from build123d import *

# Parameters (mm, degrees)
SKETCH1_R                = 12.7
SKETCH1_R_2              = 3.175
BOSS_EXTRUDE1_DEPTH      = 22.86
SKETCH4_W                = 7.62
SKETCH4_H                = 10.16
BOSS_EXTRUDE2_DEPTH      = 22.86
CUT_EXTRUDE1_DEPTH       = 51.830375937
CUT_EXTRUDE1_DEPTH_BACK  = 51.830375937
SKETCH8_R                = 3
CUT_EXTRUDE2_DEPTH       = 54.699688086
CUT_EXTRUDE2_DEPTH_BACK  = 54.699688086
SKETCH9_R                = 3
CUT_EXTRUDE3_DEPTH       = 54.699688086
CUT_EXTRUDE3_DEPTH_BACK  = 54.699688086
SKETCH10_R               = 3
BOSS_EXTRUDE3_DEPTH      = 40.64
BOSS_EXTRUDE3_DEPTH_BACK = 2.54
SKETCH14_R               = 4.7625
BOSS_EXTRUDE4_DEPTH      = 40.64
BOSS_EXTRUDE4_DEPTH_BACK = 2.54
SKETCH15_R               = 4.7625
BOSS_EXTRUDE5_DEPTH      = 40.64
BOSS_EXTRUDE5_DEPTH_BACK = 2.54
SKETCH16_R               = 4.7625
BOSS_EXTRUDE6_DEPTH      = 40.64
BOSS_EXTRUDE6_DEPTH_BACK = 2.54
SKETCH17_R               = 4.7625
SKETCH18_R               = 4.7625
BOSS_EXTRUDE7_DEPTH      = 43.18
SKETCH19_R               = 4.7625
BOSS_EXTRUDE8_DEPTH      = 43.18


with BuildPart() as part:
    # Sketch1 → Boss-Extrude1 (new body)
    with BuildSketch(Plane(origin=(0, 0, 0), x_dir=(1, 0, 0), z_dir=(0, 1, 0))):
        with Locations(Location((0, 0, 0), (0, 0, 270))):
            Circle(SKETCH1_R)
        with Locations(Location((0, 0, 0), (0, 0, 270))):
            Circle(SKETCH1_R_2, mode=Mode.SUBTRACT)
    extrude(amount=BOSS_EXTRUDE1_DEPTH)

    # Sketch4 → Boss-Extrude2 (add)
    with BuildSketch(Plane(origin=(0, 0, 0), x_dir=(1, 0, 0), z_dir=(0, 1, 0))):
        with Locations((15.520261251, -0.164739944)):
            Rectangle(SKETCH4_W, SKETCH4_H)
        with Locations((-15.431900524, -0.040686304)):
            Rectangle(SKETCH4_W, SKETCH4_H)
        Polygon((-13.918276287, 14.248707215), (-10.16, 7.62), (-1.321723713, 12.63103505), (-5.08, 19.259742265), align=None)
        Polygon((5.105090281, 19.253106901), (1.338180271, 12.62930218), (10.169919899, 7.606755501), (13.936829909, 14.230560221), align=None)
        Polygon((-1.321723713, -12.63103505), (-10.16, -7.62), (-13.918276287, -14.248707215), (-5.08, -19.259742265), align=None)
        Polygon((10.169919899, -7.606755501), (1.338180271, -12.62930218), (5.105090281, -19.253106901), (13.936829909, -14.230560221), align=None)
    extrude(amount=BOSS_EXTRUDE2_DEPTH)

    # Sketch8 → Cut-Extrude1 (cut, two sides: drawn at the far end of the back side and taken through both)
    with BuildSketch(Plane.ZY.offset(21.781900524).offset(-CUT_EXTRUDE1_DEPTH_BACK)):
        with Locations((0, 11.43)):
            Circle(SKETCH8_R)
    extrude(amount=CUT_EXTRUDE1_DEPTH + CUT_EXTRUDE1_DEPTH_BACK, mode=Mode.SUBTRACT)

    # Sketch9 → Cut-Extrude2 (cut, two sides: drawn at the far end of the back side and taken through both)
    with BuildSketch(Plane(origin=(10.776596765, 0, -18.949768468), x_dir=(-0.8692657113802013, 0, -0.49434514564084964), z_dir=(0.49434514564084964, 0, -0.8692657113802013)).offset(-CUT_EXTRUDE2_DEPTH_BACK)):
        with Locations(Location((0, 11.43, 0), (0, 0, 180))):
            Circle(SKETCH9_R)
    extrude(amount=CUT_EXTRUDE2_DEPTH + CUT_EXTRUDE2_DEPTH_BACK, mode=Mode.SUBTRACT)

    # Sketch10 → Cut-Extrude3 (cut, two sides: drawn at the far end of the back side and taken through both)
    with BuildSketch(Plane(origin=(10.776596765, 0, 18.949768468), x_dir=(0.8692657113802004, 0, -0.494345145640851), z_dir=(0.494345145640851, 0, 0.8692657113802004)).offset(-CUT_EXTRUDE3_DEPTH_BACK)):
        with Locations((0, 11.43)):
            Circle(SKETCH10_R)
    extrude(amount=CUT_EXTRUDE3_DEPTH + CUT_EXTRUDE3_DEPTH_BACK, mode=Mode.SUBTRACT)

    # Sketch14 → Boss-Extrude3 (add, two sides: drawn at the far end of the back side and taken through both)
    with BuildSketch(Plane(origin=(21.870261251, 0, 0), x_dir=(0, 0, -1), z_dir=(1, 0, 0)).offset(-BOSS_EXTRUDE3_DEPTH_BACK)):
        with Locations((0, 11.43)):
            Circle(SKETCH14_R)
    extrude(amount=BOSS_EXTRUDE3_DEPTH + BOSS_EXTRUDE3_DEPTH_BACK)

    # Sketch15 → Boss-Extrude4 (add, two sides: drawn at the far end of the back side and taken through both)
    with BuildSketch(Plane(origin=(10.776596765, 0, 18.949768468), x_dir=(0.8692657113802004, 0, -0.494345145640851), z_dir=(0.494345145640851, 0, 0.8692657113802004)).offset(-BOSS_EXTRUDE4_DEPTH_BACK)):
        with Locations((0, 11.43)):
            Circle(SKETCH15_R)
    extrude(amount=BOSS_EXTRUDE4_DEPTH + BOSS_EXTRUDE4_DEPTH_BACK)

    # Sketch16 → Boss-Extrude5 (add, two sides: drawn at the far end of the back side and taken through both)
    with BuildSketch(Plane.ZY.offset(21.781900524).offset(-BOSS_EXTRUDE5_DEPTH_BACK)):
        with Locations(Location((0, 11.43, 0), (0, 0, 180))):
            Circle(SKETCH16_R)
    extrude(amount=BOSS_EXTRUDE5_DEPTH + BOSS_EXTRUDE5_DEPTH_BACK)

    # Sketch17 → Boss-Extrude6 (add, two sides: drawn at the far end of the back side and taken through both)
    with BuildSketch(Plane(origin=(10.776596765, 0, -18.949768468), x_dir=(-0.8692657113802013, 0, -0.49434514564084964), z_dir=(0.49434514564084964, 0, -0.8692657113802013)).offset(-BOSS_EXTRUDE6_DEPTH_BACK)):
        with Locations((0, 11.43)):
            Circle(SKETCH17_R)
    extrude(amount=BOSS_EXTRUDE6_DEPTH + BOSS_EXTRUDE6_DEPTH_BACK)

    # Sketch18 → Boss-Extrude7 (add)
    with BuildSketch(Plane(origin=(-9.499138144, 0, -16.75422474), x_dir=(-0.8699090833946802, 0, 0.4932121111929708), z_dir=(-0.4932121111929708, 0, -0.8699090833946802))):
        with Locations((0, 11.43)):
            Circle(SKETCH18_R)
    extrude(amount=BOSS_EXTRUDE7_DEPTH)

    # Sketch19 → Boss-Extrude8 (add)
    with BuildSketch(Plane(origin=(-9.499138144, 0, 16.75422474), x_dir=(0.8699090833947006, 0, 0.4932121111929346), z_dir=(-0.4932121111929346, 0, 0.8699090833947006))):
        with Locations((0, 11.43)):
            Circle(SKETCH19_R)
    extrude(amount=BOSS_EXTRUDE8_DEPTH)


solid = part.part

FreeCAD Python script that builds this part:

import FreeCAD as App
import Part
import Sketcher
Q = App.Units.Quantity


def add_polygon(sketch, points):
    """Adds a closed chain of lines whose ends are joined by coincident constraints."""
    first, n = sketch.GeometryCount, len(points)
    for a, b in zip(points, points[1:] + points[:1]):
        sketch.addGeometry(Part.LineSegment(App.Vector(*a, 0), App.Vector(*b, 0)), False)
    for i in range(n):
        sketch.addConstraint(Sketcher.Constraint("Coincident", first + i, 2, first + (i + 1) % n, 1))

doc = App.newDocument("Part")
body = doc.addObject("PartDesign::Body", "Body")

# Sketch on XZ plane
sketch1 = doc.addObject("Sketcher::SketchObject", "Sketch")
body.addObject(sketch1)
sketch1.AttachmentSupport = (doc.XZ_Plane, [""])
sketch1.MapMode = "FlatFace"
sketch1.addGeometry([
    Part.Circle(App.Vector(0, 0, 0), App.Vector(0, 0, 1), 12.7),
    Part.Circle(App.Vector(0, 0, 0), App.Vector(0, 0, 1), 3.2),
], False)
sketch1.addConstraint([
    Sketcher.Constraint("Coincident", 0, 3, -1, 1),
    Sketcher.Constraint("Coincident", 1, 3, -1, 1),
    Sketcher.Constraint("Diameter", 0, Q("1 in")),
    Sketcher.Constraint("Diameter", 1, Q("0.25 in")),
])
pad1 = doc.addObject("PartDesign::Pad", "Pad")
body.addObject(pad1)
pad1.Profile = sketch1
pad1.Length = Q("0.9 in")
pad1.Reversed = True

# Sketch on XZ plane
sketch2 = doc.addObject("Sketcher::SketchObject", "Sketch001")
body.addObject(sketch2)
sketch2.AttachmentSupport = (doc.XZ_Plane, [""])
sketch2.MapMode = "FlatFace"
add_polygon(sketch2, [(12, -5), (12, 5), (19, 5), (19, -5)])  # lines 0-3
add_polygon(sketch2, [(-19, -5), (-19, 5), (-12, 5), (-12, -5)])  # lines 4-7
add_polygon(sketch2, [(-14, -14), (-10, -8), (-1, -13), (-5, -19)])  # lines 8-11
add_polygon(sketch2, [(5, -19), (1, -13), (10, -8), (14, -14)])  # lines 12-15
add_polygon(sketch2, [(-1, 13), (-10, 8), (-14, 14), (-5, 19)])  # lines 16-19
add_polygon(sketch2, [(10, 8), (1, 13), (5, 19), (14, 14)])  # lines 20-23
sketch2.addConstraint([
    Sketcher.Constraint("Vertical", 0),
    Sketcher.Constraint("Horizontal", 1),
    Sketcher.Constraint("Vertical", 2),
    Sketcher.Constraint("Horizontal", 3),
    Sketcher.Constraint("Vertical", 4),
    Sketcher.Constraint("Horizontal", 5),
    Sketcher.Constraint("Vertical", 6),
    Sketcher.Constraint("Horizontal", 7),
    Sketcher.Constraint("Symmetric", 8, 2, 16, 2, -1),
    Sketcher.Constraint("Symmetric", 11, 2, 17, 2, -1),
    Sketcher.Constraint("Symmetric", 10, 2, 18, 2, -1),
    Sketcher.Constraint("Symmetric", 9, 2, 19, 2, -1),
    Sketcher.Constraint("Symmetric", 12, 2, 20, 2, -1),
    Sketcher.Constraint("Symmetric", 15, 2, 21, 2, -1),
    Sketcher.Constraint("Symmetric", 14, 2, 22, 2, -1),
    Sketcher.Constraint("Symmetric", 13, 2, 23, 2, -1),
    Sketcher.Constraint("Perpendicular", 8, 9),
    Sketcher.Constraint("Perpendicular", 9, 10),
    Sketcher.Constraint("Perpendicular", 10, 11),
    Sketcher.Constraint("Perpendicular", 12, 13),
    Sketcher.Constraint("Perpendicular", 13, 14),
    Sketcher.Constraint("Perpendicular", 14, 15),
    Sketcher.Constraint("Equal", 3, 5),
    Sketcher.Constraint("Equal", 2, 4),
    Sketcher.Constraint("Equal", 10, 12),
    Sketcher.Constraint("Equal", 11, 13),
    Sketcher.Constraint("DistanceX", 1, 1, 1, 2, Q("0.3 in")),
    Sketcher.Constraint("DistanceY", 0, 1, 0, 2, Q("0.4 in")),
    Sketcher.Constraint("Distance", 8, Q("0.3 in")),
    Sketcher.Constraint("Distance", 9, Q("0.4 in")),
    Sketcher.Constraint("DistanceX", 8, 2, -1, 1, Q("0.4 in")),
    Sketcher.Constraint("DistanceY", 8, 2, -1, 1, Q("0.3 in")),
    Sketcher.Constraint("DistanceX", 10, 2, -1, 1, Q("0.2 in")),
    Sketcher.Constraint("DistanceX", 4, 2, -1, 1, Q("19.241901 mm")),
    Sketcher.Constraint("DistanceY", 14, 2, 3, 2, Q("9.3153 mm")),
    Sketcher.Constraint("DistanceX", -1, 1, 0, 2, Q("11.710261 mm")),
    Sketcher.Constraint("DistanceY", -1, 1, 0, 2, Q("5.24474 mm")),
    Sketcher.Constraint("DistanceX", -1, 1, 12, 2, Q("1.33818 mm")),
    Sketcher.Constraint("DistanceX", -1, 1, 13, 2, Q("10.16992 mm")),
    Sketcher.Constraint("DistanceY", 9, 2, 6, 2, Q("7.591721 mm")),
])
pad2 = doc.addObject("PartDesign::Pad", "Pad001")
body.addObject(pad2)
pad2.Profile = sketch2
pad2.Length = Q("0.9 in")
pad2.Reversed = True

# Sketch on YZ plane
sketch3 = doc.addObject("Sketcher::SketchObject", "Sketch002")
body.addObject(sketch3)
sketch3.AttachmentSupport = (doc.YZ_Plane, [""])
sketch3.MapMode = "FlatFace"
sketch3.AttachmentOffset = App.Placement(App.Vector(0, 0, -21.781901), App.Rotation())
sketch3.addGeometry(Part.Circle(App.Vector(11.4, 0, 0), App.Vector(0, 0, 1), 3), False)
sketch3.addConstraint([
    Sketcher.Constraint("PointOnObject", 0, 3, -1),
    Sketcher.Constraint("Diameter", 0, Q("6 mm")),
    Sketcher.Constraint("DistanceX", -1, 1, 0, 3, Q("0.45 in")),
])
pocket1 = doc.addObject("PartDesign::Pocket", "Pocket")
body.addObject(pocket1)
pocket1.Profile = sketch3
pocket1.Type = "ThroughAll"
pocket1.Midplane = True

# Sketch on an angled plane
sketch4 = doc.addObject("Sketcher::SketchObject", "Sketch003")
body.addObject(sketch4)
sketch4.Placement = App.Placement(App.Vector(10.776597, 0, -18.949768), App.Rotation(App.Vector(-0.869265711, 0, -0.494345146), App.Vector(0, 1, 0), App.Vector(0.494345146, 0, -0.869265711), "ZXY"))
sketch4.addGeometry(Part.Circle(App.Vector(0, 11.4, 0), App.Vector(0, 0, 1), 3), False)
sketch4.addConstraint([
    Sketcher.Constraint("PointOnObject", 0, 3, -2),
    Sketcher.Constraint("Diameter", 0, Q("6 mm")),
    Sketcher.Constraint("DistanceY", -1, 1, 0, 3, Q("0.45 in")),
])
pocket2 = doc.addObject("PartDesign::Pocket", "Pocket001")
body.addObject(pocket2)
pocket2.Profile = sketch4
pocket2.Type = "ThroughAll"
pocket2.Midplane = True

# Sketch on an angled plane
sketch5 = doc.addObject("Sketcher::SketchObject", "Sketch004")
body.addObject(sketch5)
sketch5.Placement = App.Placement(App.Vector(10.776597, 0, 18.949768), App.Rotation(App.Vector(0.869265711, 0, -0.494345146), App.Vector(0, 1, 0), App.Vector(0.494345146, 0, 0.869265711), "ZXY"))
sketch5.addGeometry(Part.Circle(App.Vector(0, 11.4, 0), App.Vector(0, 0, 1), 3), False)
sketch5.addConstraint([
    Sketcher.Constraint("PointOnObject", 0, 3, -2),
    Sketcher.Constraint("Diameter", 0, Q("6 mm")),
    Sketcher.Constraint("DistanceY", -1, 1, 0, 3, Q("0.45 in")),
])
pocket3 = doc.addObject("PartDesign::Pocket", "Pocket002")
body.addObject(pocket3)
pocket3.Profile = sketch5
pocket3.Type = "ThroughAll"
pocket3.Midplane = True

# Sketch on YZ plane
sketch6 = doc.addObject("Sketcher::SketchObject", "Sketch005")
body.addObject(sketch6)
sketch6.AttachmentSupport = (doc.YZ_Plane, [""])
sketch6.MapMode = "FlatFace"
sketch6.AttachmentOffset = App.Placement(App.Vector(0, 0, 21.870261), App.Rotation())
sketch6.addGeometry(Part.Circle(App.Vector(11.4, 0, 0), App.Vector(0, 0, 1), 4.8), False)
sketch6.addConstraint([
    Sketcher.Constraint("PointOnObject", 0, 3, -1),
    Sketcher.Constraint("Diameter", 0, Q("0.375 in")),
    Sketcher.Constraint("DistanceX", -1, 1, 0, 3, Q("0.45 in")),
])
pad3 = doc.addObject("PartDesign::Pad", "Pad002")
body.addObject(pad3)
pad3.Profile = sketch6
pad3.Type = "TwoLengths"
pad3.Length = Q("1.6 in")
pad3.Length2 = Q("0.1 in")

# Sketch on an angled plane
sketch7 = doc.addObject("Sketcher::SketchObject", "Sketch006")
body.addObject(sketch7)
sketch7.Placement = App.Placement(App.Vector(10.776597, 0, 18.949768), App.Rotation(App.Vector(0.869265711, 0, -0.494345146), App.Vector(0, 1, 0), App.Vector(0.494345146, 0, 0.869265711), "ZXY"))
sketch7.addGeometry(Part.Circle(App.Vector(0, 11.4, 0), App.Vector(0, 0, 1), 4.8), False)
sketch7.addConstraint([
    Sketcher.Constraint("PointOnObject", 0, 3, -2),
    Sketcher.Constraint("Diameter", 0, Q("0.375 in")),
    Sketcher.Constraint("DistanceY", -1, 1, 0, 3, Q("0.45 in")),
])
pad4 = doc.addObject("PartDesign::Pad", "Pad003")
body.addObject(pad4)
pad4.Profile = sketch7
pad4.Type = "TwoLengths"
pad4.Length = Q("1.6 in")
pad4.Length2 = Q("0.1 in")

# Sketch on YZ plane
sketch8 = doc.addObject("Sketcher::SketchObject", "Sketch007")
body.addObject(sketch8)
sketch8.AttachmentSupport = (doc.YZ_Plane, [""])
sketch8.MapMode = "FlatFace"
sketch8.AttachmentOffset = App.Placement(App.Vector(0, 0, -21.781901), App.Rotation())
sketch8.addGeometry(Part.Circle(App.Vector(11.4, 0, 0), App.Vector(0, 0, 1), 4.8), False)
sketch8.addConstraint([
    Sketcher.Constraint("PointOnObject", 0, 3, -1),
    Sketcher.Constraint("Diameter", 0, Q("0.375 in")),
    Sketcher.Constraint("DistanceX", -1, 1, 0, 3, Q("0.45 in")),
])
pad5 = doc.addObject("PartDesign::Pad", "Pad004")
body.addObject(pad5)
pad5.Profile = sketch8
pad5.Type = "TwoLengths"
pad5.Length = Q("1.6 in")
pad5.Length2 = Q("0.1 in")
pad5.Reversed = True

# Sketch on an angled plane
sketch9 = doc.addObject("Sketcher::SketchObject", "Sketch008")
body.addObject(sketch9)
sketch9.Placement = App.Placement(App.Vector(10.776597, 0, -18.949768), App.Rotation(App.Vector(-0.869265711, 0, -0.494345146), App.Vector(0, 1, 0), App.Vector(0.494345146, 0, -0.869265711), "ZXY"))
sketch9.addGeometry(Part.Circle(App.Vector(0, 11.4, 0), App.Vector(0, 0, 1), 4.8), False)
sketch9.addConstraint([
    Sketcher.Constraint("PointOnObject", 0, 3, -2),
    Sketcher.Constraint("Diameter", 0, Q("0.375 in")),
    Sketcher.Constraint("DistanceY", -1, 1, 0, 3, Q("0.45 in")),
])
pad6 = doc.addObject("PartDesign::Pad", "Pad005")
body.addObject(pad6)
pad6.Profile = sketch9
pad6.Type = "TwoLengths"
pad6.Length = Q("1.6 in")
pad6.Length2 = Q("0.1 in")

# Sketch on an angled plane
sketch10 = doc.addObject("Sketcher::SketchObject", "Sketch009")
body.addObject(sketch10)
sketch10.Placement = App.Placement(App.Vector(-9.499138, 0, -16.754225), App.Rotation(App.Vector(-0.869909083, 0, 0.493212111), App.Vector(0, 0.999999999, 0), App.Vector(-0.493212111, 0, -0.869909083), "ZXY"))
sketch10.addGeometry(Part.Circle(App.Vector(0, 11.4, 0), App.Vector(0, 0, 1), 4.8), False)
sketch10.addConstraint([
    Sketcher.Constraint("PointOnObject", 0, 3, -2),
    Sketcher.Constraint("Diameter", 0, Q("0.375 in")),
    Sketcher.Constraint("DistanceY", -1, 1, 0, 3, Q("0.45 in")),
])
pad7 = doc.addObject("PartDesign::Pad", "Pad006")
body.addObject(pad7)
pad7.Profile = sketch10
pad7.Length = Q("1.7 in")

# Sketch on an angled plane
sketch11 = doc.addObject("Sketcher::SketchObject", "Sketch010")
body.addObject(sketch11)
sketch11.Placement = App.Placement(App.Vector(-9.499138, 0, 16.754225), App.Rotation(App.Vector(0.869909083, 0, 0.493212111), App.Vector(0, 0.999999999, 0), App.Vector(-0.493212111, 0, 0.869909083), "ZXY"))
sketch11.addGeometry(Part.Circle(App.Vector(0, 11.4, 0), App.Vector(0, 0, 1), 4.8), False)
sketch11.addConstraint([
    Sketcher.Constraint("PointOnObject", 0, 3, -2),
    Sketcher.Constraint("Diameter", 0, Q("0.375 in")),
    Sketcher.Constraint("DistanceY", -1, 1, 0, 3, Q("0.45 in")),
])
pad8 = doc.addObject("PartDesign::Pad", "Pad007")
body.addObject(pad8)
pad8.Profile = sketch11
pad8.Length = Q("1.7 in")

doc.recompute()
